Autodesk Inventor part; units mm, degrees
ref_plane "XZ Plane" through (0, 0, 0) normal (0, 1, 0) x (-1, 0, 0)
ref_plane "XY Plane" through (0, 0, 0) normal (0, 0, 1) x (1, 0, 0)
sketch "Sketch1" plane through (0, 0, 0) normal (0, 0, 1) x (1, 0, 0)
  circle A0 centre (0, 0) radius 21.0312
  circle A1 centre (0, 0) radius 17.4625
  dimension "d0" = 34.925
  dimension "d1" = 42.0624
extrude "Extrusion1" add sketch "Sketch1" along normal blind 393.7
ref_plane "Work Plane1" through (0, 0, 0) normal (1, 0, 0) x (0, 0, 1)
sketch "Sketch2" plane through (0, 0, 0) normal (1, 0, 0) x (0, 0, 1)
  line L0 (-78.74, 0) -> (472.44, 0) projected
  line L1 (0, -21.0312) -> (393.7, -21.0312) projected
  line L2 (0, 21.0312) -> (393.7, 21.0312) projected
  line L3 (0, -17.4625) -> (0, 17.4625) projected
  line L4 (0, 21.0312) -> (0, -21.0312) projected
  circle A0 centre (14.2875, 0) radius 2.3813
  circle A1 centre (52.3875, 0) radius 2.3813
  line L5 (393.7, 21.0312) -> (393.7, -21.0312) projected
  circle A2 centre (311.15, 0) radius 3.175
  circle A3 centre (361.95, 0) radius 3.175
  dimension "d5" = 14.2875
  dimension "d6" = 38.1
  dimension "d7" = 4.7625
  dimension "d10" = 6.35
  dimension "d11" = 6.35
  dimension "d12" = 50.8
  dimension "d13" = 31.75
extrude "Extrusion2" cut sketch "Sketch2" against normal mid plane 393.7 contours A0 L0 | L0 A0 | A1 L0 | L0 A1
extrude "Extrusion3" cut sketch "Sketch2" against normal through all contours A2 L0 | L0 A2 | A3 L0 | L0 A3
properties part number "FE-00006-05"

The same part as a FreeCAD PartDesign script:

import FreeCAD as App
import Part
import Sketcher

V = App.Vector
Q = App.Units.Quantity

doc = App.newDocument("Part")
body = doc.addObject("PartDesign::Body", "Body")

# Sketch on XY plane
sketch1 = doc.addObject("Sketcher::SketchObject", "Sketch")
body.addObject(sketch1)
sketch1.AttachmentSupport = (doc.XY_Plane, [""])
sketch1.MapMode = "FlatFace"
sketch1.addGeometry([
    Part.Circle(V(0, 0, 0), V(0, 0, 1), 21),
    Part.Circle(V(0, 0, 0), V(0, 0, 1), 17),
], False)
sketch1.addConstraint([
    Sketcher.Constraint("Coincident", 0, 3, -1, 1),
    Sketcher.Constraint("Coincident", 1, 3, -1, 1),
    Sketcher.Constraint("Diameter", 0, Q("1.656 in")),
    Sketcher.Constraint("Diameter", 1, Q("1.375 in")),
])
pad1 = doc.addObject("PartDesign::Pad", "Pad")
body.addObject(pad1)
pad1.Profile = sketch1
pad1.Length = Q("15.5 in")

# Sketch on YZ plane
sketch2 = doc.addObject("Sketcher::SketchObject", "Sketch001")
body.addObject(sketch2)
sketch2.AttachmentSupport = (doc.YZ_Plane, [""])
sketch2.MapMode = "FlatFace"
sketch2.addGeometry([
    Part.Circle(V(0, 14.3, 0), V(0, 0, 1), 2.4),
    Part.Circle(V(0, 52.4, 0), V(0, 0, 1), 2.4),
], False)
sketch2.addConstraint([
    Sketcher.Constraint("Equal", 0, 1),
    Sketcher.Constraint("PointOnObject", 0, 3, -2),
    Sketcher.Constraint("PointOnObject", 1, 3, -2),
    Sketcher.Constraint("Diameter", 0, Q("0.1875 in")),
    Sketcher.Constraint("DistanceY", 0, 3, 1, 3, Q("1.5 in")),
    Sketcher.Constraint("DistanceY", -1, 1, 0, 3, Q("0.5625 in")),
])
pocket1 = doc.addObject("PartDesign::Pocket", "Pocket")
body.addObject(pocket1)
pocket1.Profile = sketch2
pocket1.Length = Q("15.5 in")
pocket1.Midplane = True

# Sketch on YZ plane
sketch3 = doc.addObject("Sketcher::SketchObject", "Sketch002")
body.addObject(sketch3)
sketch3.AttachmentSupport = (doc.YZ_Plane, [""])
sketch3.MapMode = "FlatFace"
sketch3.addGeometry([
    Part.Circle(V(0, 311.1, 0), V(0, 0, 1), 3.2),
    Part.Circle(V(0, 361.9, 0), V(0, 0, 1), 3.2),
], False)
sketch3.addConstraint([
    Sketcher.Constraint("Equal", 0, 1),
    Sketcher.Constraint("PointOnObject", 0, 3, -2),
    Sketcher.Constraint("PointOnObject", 1, 3, -2),
    Sketcher.Constraint("Diameter", 0, Q("0.25 in")),
    Sketcher.Constraint("DistanceY", 0, 3, 1, 3, Q("2 in")),
    Sketcher.Constraint("DistanceY", -1, 1, 0, 3, Q("12.25 in")),
])
pocket2 = doc.addObject("PartDesign::Pocket", "Pocket001")
body.addObject(pocket2)
pocket2.Profile = sketch3
pocket2.Type = "ThroughAll"

doc.recompute()
